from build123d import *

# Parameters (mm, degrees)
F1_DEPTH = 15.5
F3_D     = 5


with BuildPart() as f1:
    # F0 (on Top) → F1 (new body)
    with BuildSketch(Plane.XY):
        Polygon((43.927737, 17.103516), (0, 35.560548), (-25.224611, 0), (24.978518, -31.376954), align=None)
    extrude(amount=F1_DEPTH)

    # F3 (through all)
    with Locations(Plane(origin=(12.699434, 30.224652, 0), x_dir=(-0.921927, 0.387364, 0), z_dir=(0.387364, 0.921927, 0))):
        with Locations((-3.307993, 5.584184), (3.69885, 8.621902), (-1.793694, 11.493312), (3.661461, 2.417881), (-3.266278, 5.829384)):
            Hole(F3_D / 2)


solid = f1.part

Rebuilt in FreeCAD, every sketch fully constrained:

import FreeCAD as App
import Part
import Sketcher
from FreeCAD import Vector


def add_polygon(sketch, points):
    """Adds a closed chain of lines whose ends are joined by coincident constraints."""
    first, n = sketch.GeometryCount, len(points)
    for a, b in zip(points, points[1:] + points[:1]):
        sketch.addGeometry(Part.LineSegment(App.Vector(*a, 0), App.Vector(*b, 0)), False)
    for i in range(n):
        sketch.addConstraint(Sketcher.Constraint("Coincident", first + i, 2, first + (i + 1) % n, 1))

doc = App.newDocument("Part")
body = doc.addObject("PartDesign::Body", "Body")

# Sketch on XY plane
sketch1 = body.newObject("Sketcher::SketchObject", "Sketch")
sketch1.AttachmentSupport = (doc.getObject("XY_Plane"), [""])
sketch1.MapMode = "FlatFace"
add_polygon(sketch1, [(43.927737, 17.103516), (0, 35.560548), (-25.224611, 0), (24.978518, -31.376954)])  # lines 0-3
sketch1.addConstraint([
    Sketcher.Constraint("PointOnObject", 0, 2, -2),
    Sketcher.Constraint("PointOnObject", 1, 2, -1),
    Sketcher.Constraint("DistanceY", 2, 2, 0, 2, 66.937502),
    Sketcher.Constraint("Distance", 0, 47.64775),
    Sketcher.Constraint("Distance", 1, 43.59855),
    Sketcher.Constraint("Distance", 2, 59.201921),
    Sketcher.Constraint("DistanceX", 1, 2, -1, 1, 25.224611),
    Sketcher.Constraint("DistanceY", 3, 2, 0, 2, 18.457032),
])
pad1 = body.newObject("PartDesign::Pad", "Pad")
pad1.Profile = sketch1
pad1.Length = 15.5

# Sketch on an angled plane
sketch2 = body.newObject("Sketcher::SketchObject", "Sketch001")
sketch2.Placement = App.Placement(Vector(12.699426, 30.224655, 0), App.Rotation(Vector(-0.921926879, 0.387363949, 0), Vector(0, 0, 0.999999999), Vector(0.387363949, 0.921926879, 0), "ZXY"))
sketch2.addGeometry([
    Part.Circle(Vector(-3.308002, 5.584184, 0), Vector(0, 0, 1), 2.5),  # 0
    Part.Circle(Vector(3.698841, 8.621902, 0), Vector(0, 0, 1), 2.5),  # 1
    Part.Circle(Vector(-1.793703, 11.493312, 0), Vector(0, 0, 1), 2.5),  # 2
    Part.Circle(Vector(3.661452, 2.417881, 0), Vector(0, 0, 1), 2.5),  # 3
    Part.Circle(Vector(-3.266287, 5.829384, 0), Vector(0, 0, 1), 2.5),  # 4
], False)
sketch2.addConstraint([
    Sketcher.Constraint("Equal", 0, 1),
    Sketcher.Constraint("Equal", 1, 2),
    Sketcher.Constraint("Equal", 2, 3),
    Sketcher.Constraint("Equal", 3, 4),
    Sketcher.Constraint("Diameter", 0, 5.0),
    Sketcher.Constraint("DistanceX", 0, 3, -1, 1, 3.308002),
    Sketcher.Constraint("DistanceY", -1, 1, 1, 3, 8.621902),
    Sketcher.Constraint("DistanceX", 0, 3, 2, 3, 1.514299),
    Sketcher.Constraint("DistanceY", 0, 3, 4, 3, 0.2452),
    Sketcher.Constraint("DistanceX", -1, 1, 1, 3, 3.698841),
    Sketcher.Constraint("DistanceY", -1, 1, 2, 3, 11.493312),
    Sketcher.Constraint("DistanceY", -1, 1, 3, 3, 2.417881),
    Sketcher.Constraint("DistanceX", 3, 3, 1, 3, 0.037389),
    Sketcher.Constraint("DistanceX", 4, 3, 3, 3, 6.927739),
    Sketcher.Constraint("DistanceY", -1, 1, 0, 3, 5.584184),
])
doc.recompute()
hole = body.newObject("PartDesign::Hole", "Hole")
hole.Profile = sketch2
hole.ThreadType = "None"
hole.Diameter = 5
hole.DepthType = "ThroughAll"

doc.recompute()
